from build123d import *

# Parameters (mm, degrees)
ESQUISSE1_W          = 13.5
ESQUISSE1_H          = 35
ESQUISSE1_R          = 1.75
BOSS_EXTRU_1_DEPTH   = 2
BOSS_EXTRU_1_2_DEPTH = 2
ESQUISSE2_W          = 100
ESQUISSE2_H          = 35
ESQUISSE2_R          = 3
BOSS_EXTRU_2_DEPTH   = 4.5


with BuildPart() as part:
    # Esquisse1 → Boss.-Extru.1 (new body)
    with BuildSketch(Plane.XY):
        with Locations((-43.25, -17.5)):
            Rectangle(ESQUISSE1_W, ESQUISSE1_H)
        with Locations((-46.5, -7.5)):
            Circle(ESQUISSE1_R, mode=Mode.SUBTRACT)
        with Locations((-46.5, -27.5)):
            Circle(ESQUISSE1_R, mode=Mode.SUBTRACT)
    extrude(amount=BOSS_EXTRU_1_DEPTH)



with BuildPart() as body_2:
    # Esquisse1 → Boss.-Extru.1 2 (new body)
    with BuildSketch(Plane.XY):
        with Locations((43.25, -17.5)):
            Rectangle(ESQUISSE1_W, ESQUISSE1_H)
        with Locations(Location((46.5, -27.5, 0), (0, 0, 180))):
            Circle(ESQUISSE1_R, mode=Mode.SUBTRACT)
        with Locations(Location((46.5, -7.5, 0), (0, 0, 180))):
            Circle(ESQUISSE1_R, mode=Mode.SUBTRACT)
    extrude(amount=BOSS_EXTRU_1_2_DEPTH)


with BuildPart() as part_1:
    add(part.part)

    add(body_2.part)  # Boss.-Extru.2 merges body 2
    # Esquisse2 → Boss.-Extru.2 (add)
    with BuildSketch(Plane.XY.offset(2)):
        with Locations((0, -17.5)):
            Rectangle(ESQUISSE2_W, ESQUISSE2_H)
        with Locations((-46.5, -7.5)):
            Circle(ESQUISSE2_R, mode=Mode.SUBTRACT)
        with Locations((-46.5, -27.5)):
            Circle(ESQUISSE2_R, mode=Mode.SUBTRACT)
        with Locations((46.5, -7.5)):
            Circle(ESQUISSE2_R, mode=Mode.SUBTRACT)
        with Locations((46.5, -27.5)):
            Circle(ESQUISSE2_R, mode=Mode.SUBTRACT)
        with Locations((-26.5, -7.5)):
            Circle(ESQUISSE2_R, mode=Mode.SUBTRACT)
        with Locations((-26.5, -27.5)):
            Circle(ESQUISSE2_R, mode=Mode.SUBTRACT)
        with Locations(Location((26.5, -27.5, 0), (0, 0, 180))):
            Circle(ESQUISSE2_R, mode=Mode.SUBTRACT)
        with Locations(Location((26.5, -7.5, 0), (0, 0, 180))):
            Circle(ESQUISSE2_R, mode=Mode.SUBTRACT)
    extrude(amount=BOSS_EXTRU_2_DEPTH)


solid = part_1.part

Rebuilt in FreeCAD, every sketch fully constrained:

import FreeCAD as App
import Part
import Sketcher
from FreeCAD import Vector
Q = App.Units.Quantity


def add_polygon(sketch, points):
    """Adds a closed chain of lines whose ends are joined by coincident constraints."""
    first, n = sketch.GeometryCount, len(points)
    for a, b in zip(points, points[1:] + points[:1]):
        sketch.addGeometry(Part.LineSegment(App.Vector(*a, 0), App.Vector(*b, 0)), False)
    for i in range(n):
        sketch.addConstraint(Sketcher.Constraint("Coincident", first + i, 2, first + (i + 1) % n, 1))

doc = App.newDocument("Part")
params = doc.addObject("Spreadsheet::Sheet", "Params")
for row, (alias, value) in enumerate([
    ("sketch1_diameter", "3.5 mm"),
    ("sketch1_height", "35 mm"),
    ("sketch1_width", "13.5 mm"),
    ("pad1_length", "2 mm"),
    ("sketch2_diameter", "3.5 mm"),
    ("sketch2_height", "35 mm"),
    ("sketch2_width", "13.5 mm"),
    ("pad2_length", "2 mm"),
    ("sketch3_diameter", "6 mm"),
    ("sketch3_width", "100 mm"),
    ("sketch3_height", "35 mm"),
    ("pad3_length", "4.5 mm"),
], start=1):
    params.set(f"A{row}", alias)
    params.set(f"B{row}", "=" + value)
    params.setAlias(f"B{row}", alias)

body = doc.addObject("PartDesign::Body", "Body")

# Sketch on XY plane
sketch1 = doc.addObject("Sketcher::SketchObject", "Sketch")
body.addObject(sketch1)
sketch1.AttachmentSupport = (doc.XY_Plane, [""])
sketch1.MapMode = "FlatFace"
add_polygon(sketch1, [(-50, 0), (-50, -35), (-36.5, -35), (-36.5, 0)])  # lines 0-3
sketch1.addGeometry(Part.Circle(Vector(-46.5, -27.5, 0), Vector(0, 0, 1), 1.8), False)  # 4
sketch1.addGeometry(Part.Circle(Vector(-46.5, -7.5, 0), Vector(0, 0, 1), 1.8), False)  # 5
sketch1.addConstraint([
    Sketcher.Constraint("Vertical", 0),
    Sketcher.Constraint("Horizontal", 1),
    Sketcher.Constraint("Vertical", 2),
    Sketcher.Constraint("Horizontal", 3),
    Sketcher.Constraint("Equal", 4, 5),
    Sketcher.Constraint("PointOnObject", 2, 2, -1),
    Sketcher.Constraint("Vertical", 4, 3, 5, 3),
    Sketcher.Constraint("Diameter", 4, Q("3.5 mm")),
    Sketcher.Constraint("DistanceY", 0, 2, 0, 1, Q("35 mm")),
    Sketcher.Constraint("DistanceX", 1, 1, 1, 2, Q("13.5 mm")),
    Sketcher.Constraint("DistanceX", 0, 2, -1, 1, Q("50 mm")),
    Sketcher.Constraint("DistanceY", 4, 3, 5, 3, Q("20 mm")),
    Sketcher.Constraint("DistanceX", 4, 3, 1, 2, Q("10 mm")),
    Sketcher.Constraint("DistanceY", 4, 3, -1, 1, Q("27.5 mm")),
])
sketch1.setExpression("Constraints[11]", "Params.sketch1_diameter")
sketch1.setExpression("Constraints[12]", "Params.sketch1_height")
sketch1.setExpression("Constraints[13]", "Params.sketch1_width")
pad1 = doc.addObject("PartDesign::Pad", "Pad")
body.addObject(pad1)
pad1.Profile = sketch1
pad1.setExpression("Length", "Params.pad1_length")
body2 = doc.addObject("PartDesign::Body", "Body001")

# Sketch on XY plane
sketch2 = doc.addObject("Sketcher::SketchObject", "Sketch001")
body2.addObject(sketch2)
sketch2.AttachmentSupport = (doc.getObject("XY_Plane001"), [""])
sketch2.MapMode = "FlatFace"
add_polygon(sketch2, [(36.5, 0), (36.5, -35), (50, -35), (50, 0)])  # lines 0-3
sketch2.addGeometry(Part.Circle(Vector(46.5, -27.5, 0), Vector(0, 0, 1), 1.8), False)  # 4
sketch2.addGeometry(Part.Circle(Vector(46.5, -7.5, 0), Vector(0, 0, 1), 1.8), False)  # 5
sketch2.addConstraint([
    Sketcher.Constraint("Vertical", 0),
    Sketcher.Constraint("Horizontal", 1),
    Sketcher.Constraint("Vertical", 2),
    Sketcher.Constraint("Horizontal", 3),
    Sketcher.Constraint("Equal", 4, 5),
    Sketcher.Constraint("PointOnObject", 2, 2, -1),
    Sketcher.Constraint("Vertical", 4, 3, 5, 3),
    Sketcher.Constraint("Diameter", 4, Q("3.5 mm")),
    Sketcher.Constraint("DistanceY", 0, 2, 0, 1, Q("35 mm")),
    Sketcher.Constraint("DistanceX", 1, 1, 1, 2, Q("13.5 mm")),
    Sketcher.Constraint("DistanceX", -1, 1, 1, 2, Q("50 mm")),
    Sketcher.Constraint("DistanceY", 4, 3, 5, 3, Q("20 mm")),
    Sketcher.Constraint("DistanceX", 0, 2, 4, 3, Q("10 mm")),
    Sketcher.Constraint("DistanceY", 4, 3, -1, 1, Q("27.5 mm")),
])
sketch2.setExpression("Constraints[11]", "Params.sketch2_diameter")
sketch2.setExpression("Constraints[12]", "Params.sketch2_height")
sketch2.setExpression("Constraints[13]", "Params.sketch2_width")
pad2 = doc.addObject("PartDesign::Pad", "Pad001")
body2.addObject(pad2)
pad2.Profile = sketch2
pad2.setExpression("Length", "Params.pad2_length")
body.AllowCompound = True
doc.recompute()

boolean = doc.addObject("PartDesign::Boolean", "Boolean")
body.addObject(boolean)
boolean.Type = "Fuse"
boolean.addObjects([body2])

# Sketch on XY plane
sketch3 = doc.addObject("Sketcher::SketchObject", "Sketch002")
body.addObject(sketch3)
sketch3.AttachmentSupport = (doc.XY_Plane, [""])
sketch3.MapMode = "FlatFace"
sketch3.AttachmentOffset = App.Placement(Vector(0, 0, 2), App.Rotation())
add_polygon(sketch3, [(-50, 0), (-50, -35), (50, -35), (50, 0)])  # lines 0-3
sketch3.addGeometry(Part.Circle(Vector(-46.5, -27.5, 0), Vector(0, 0, 1), 3), False)  # 4
sketch3.addGeometry(Part.Circle(Vector(-26.5, -27.5, 0), Vector(0, 0, 1), 3), False)  # 5
sketch3.addGeometry(Part.Circle(Vector(26.5, -27.5, 0), Vector(0, 0, 1), 3), False)  # 6
sketch3.addGeometry(Part.Circle(Vector(46.5, -27.5, 0), Vector(0, 0, 1), 3), False)  # 7
sketch3.addGeometry(Part.Circle(Vector(-46.5, -7.5, 0), Vector(0, 0, 1), 3), False)  # 8
sketch3.addGeometry(Part.Circle(Vector(-26.5, -7.5, 0), Vector(0, 0, 1), 3), False)  # 9
sketch3.addGeometry(Part.Circle(Vector(26.5, -7.5, 0), Vector(0, 0, 1), 3), False)  # 10
sketch3.addGeometry(Part.Circle(Vector(46.5, -7.5, 0), Vector(0, 0, 1), 3), False)  # 11
sketch3.addConstraint([
    Sketcher.Constraint("Vertical", 0),
    Sketcher.Constraint("Horizontal", 1),
    Sketcher.Constraint("Vertical", 2),
    Sketcher.Constraint("Horizontal", 3),
    Sketcher.Constraint("Equal", 4, 5),
    Sketcher.Constraint("Equal", 5, 6),
    Sketcher.Constraint("Equal", 6, 7),
    Sketcher.Constraint("Equal", 7, 8),
    Sketcher.Constraint("Equal", 8, 9),
    Sketcher.Constraint("Equal", 9, 10),
    Sketcher.Constraint("Equal", 10, 11),
    Sketcher.Constraint("Symmetric", 2, 2, 3, 2, -1, 1),
    Sketcher.Constraint("Symmetric", 5, 3, 6, 3, -2),
    Sketcher.Constraint("Symmetric", 4, 3, 7, 3, -2),
    Sketcher.Constraint("Symmetric", 9, 3, 10, 3, -2),
    Sketcher.Constraint("Symmetric", 8, 3, 11, 3, -2),
    Sketcher.Constraint("Horizontal", 4, 3, 5, 3),
    Sketcher.Constraint("Horizontal", 8, 3, 9, 3),
    Sketcher.Constraint("Vertical", 4, 3, 8, 3),
    Sketcher.Constraint("Vertical", 5, 3, 9, 3),
    Sketcher.Constraint("Diameter", 4, Q("6 mm")),
    Sketcher.Constraint("DistanceX", 1, 1, 1, 2, Q("100 mm")),
    Sketcher.Constraint("DistanceY", 0, 2, 0, 1, Q("35 mm")),
    Sketcher.Constraint("DistanceX", 4, 3, 5, 3, Q("20 mm")),
    Sketcher.Constraint("DistanceX", 5, 3, 6, 3, Q("53 mm")),
    Sketcher.Constraint("DistanceY", 4, 3, 8, 3, Q("20 mm")),
    Sketcher.Constraint("DistanceY", 4, 3, -1, 1, Q("27.5 mm")),
])
sketch3.setExpression("Constraints[24]", "Params.sketch3_diameter")
sketch3.setExpression("Constraints[25]", "Params.sketch3_width")
sketch3.setExpression("Constraints[26]", "Params.sketch3_height")
pad3 = doc.addObject("PartDesign::Pad", "Pad002")
body.addObject(pad3)
pad3.Profile = sketch3
pad3.setExpression("Length", "Params.pad3_length")

doc.recompute()
